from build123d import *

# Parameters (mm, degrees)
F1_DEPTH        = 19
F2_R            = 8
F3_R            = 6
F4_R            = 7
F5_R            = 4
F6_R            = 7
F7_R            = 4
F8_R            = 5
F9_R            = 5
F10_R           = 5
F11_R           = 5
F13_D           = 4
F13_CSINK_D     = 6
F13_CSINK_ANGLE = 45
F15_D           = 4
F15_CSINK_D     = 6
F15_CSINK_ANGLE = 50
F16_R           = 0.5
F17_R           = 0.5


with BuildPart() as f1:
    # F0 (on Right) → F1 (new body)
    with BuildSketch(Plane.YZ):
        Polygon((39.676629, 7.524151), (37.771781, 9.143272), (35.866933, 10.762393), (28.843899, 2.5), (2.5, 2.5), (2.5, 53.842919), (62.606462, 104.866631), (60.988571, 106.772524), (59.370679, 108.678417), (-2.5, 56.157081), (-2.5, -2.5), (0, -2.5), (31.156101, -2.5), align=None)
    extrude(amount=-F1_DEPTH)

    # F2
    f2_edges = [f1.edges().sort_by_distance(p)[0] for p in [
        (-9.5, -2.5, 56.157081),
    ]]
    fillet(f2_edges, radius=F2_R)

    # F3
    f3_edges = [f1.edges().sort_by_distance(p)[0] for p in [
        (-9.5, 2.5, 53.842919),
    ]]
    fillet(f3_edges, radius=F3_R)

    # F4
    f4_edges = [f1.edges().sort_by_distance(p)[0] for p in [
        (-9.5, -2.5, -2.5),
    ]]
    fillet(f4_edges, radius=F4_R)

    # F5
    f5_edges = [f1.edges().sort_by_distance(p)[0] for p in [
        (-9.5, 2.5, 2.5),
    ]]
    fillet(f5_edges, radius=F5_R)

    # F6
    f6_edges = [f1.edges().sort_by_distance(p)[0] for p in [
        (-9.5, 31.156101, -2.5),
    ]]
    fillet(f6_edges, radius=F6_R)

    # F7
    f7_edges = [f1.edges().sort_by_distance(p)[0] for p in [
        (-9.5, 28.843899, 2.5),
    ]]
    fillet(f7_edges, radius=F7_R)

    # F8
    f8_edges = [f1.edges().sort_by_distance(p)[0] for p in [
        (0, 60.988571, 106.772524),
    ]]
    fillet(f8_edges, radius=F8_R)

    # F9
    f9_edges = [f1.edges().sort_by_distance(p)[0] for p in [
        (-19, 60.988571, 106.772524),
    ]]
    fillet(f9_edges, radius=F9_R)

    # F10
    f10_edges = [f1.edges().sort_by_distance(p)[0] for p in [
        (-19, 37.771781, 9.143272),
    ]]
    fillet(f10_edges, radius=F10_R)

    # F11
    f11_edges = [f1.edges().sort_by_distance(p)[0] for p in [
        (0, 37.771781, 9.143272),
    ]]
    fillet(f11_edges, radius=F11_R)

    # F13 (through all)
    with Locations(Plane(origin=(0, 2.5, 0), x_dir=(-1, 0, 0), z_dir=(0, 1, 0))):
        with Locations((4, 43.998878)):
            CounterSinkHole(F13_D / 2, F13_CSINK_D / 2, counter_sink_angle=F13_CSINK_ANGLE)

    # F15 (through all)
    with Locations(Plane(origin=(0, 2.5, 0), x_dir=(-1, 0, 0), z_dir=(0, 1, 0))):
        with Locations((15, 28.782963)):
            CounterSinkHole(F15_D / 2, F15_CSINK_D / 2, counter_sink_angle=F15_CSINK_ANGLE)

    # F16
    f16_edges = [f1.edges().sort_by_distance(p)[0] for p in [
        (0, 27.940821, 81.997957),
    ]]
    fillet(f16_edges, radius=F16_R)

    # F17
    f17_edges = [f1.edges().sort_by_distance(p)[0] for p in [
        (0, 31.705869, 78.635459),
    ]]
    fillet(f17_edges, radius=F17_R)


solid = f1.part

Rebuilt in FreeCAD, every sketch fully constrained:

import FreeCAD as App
import Part
import Sketcher

V = App.Vector
Q = App.Units.Quantity


def edges_at(feature, points):
    """Names of the edges that pass closest to the given points."""
    edges = feature.Shape.Edges
    near = lambda p: min(range(len(edges)), key=lambda i: edges[i].distToShape(Part.Vertex(*p))[0])
    return sorted({f"Edge{near(p) + 1}" for p in points})


def add_polygon(sketch, points):
    """Adds a closed chain of lines whose ends are joined by coincident constraints."""
    first, n = sketch.GeometryCount, len(points)
    for a, b in zip(points, points[1:] + points[:1]):
        sketch.addGeometry(Part.LineSegment(App.Vector(*a, 0), App.Vector(*b, 0)), False)
    for i in range(n):
        sketch.addConstraint(Sketcher.Constraint("Coincident", first + i, 2, first + (i + 1) % n, 1))

doc = App.newDocument("Part")
body = doc.addObject("PartDesign::Body", "Body")

# Sketch on YZ plane
sketch1 = body.newObject("Sketcher::SketchObject", "Sketch")
sketch1.AttachmentSupport = (doc.getObject("YZ_Plane"), [""])
sketch1.MapMode = "FlatFace"
add_polygon(sketch1, [(39.676629, 7.524151), (35.866933, 10.762393), (28.843899, 2.5), (2.5, 2.5), (2.5, 53.842919), (62.606462, 104.866631), (60.988571, 106.772524), (59.370679, 108.678417), (-2.5, 56.157081), (-2.5, -2.5), (31.156101, -2.5)])  # lines 0-10
sketch1.addConstraint(Sketcher.Constraint("Horizontal", 2))
sketch1.addConstraint(Sketcher.Constraint("Vertical", 3))
sketch1.addConstraint(Sketcher.Constraint("Vertical", 8))
sketch1.addConstraint(Sketcher.Constraint("Horizontal", 9))
sketch1.addConstraint(Sketcher.Constraint("Distance", 0, Q("4.999999 mm")))
sketch1.addConstraint(Sketcher.Constraint("DistanceX", 7, 2, 3, 2, Q("5 mm")))
sketch1.addConstraint(Sketcher.Constraint("DistanceY", 8, 2, 2, 2, Q("5 mm")))
sketch1.addConstraint(Sketcher.Constraint("Distance", 5, Q("2.5 mm")))
sketch1.addConstraint(Sketcher.Constraint("Distance", 6, Q("2.500001 mm")))
sketch1.addConstraint(Sketcher.Constraint("DistanceY", -1, 1, 1, 2, Q("2.5 mm")))
sketch1.addConstraint(Sketcher.Constraint("DistanceX", -1, 1, 2, 2, Q("2.5 mm")))
sketch1.addConstraint(Sketcher.Constraint("DistanceX", 2, 2, 2, 1, Q("26.343899 mm")))
sketch1.addConstraint(Sketcher.Constraint("DistanceX", 9, 1, 9, 2, Q("33.656101 mm")))
sketch1.addConstraint(Sketcher.Constraint("Distance", 1, Q("10.843899 mm")))
sketch1.addConstraint(Sketcher.Constraint("Distance", 10, Q("13.156101 mm")))
sketch1.addConstraint(Sketcher.Constraint("DistanceY", 3, 1, 3, 2, Q("51.342919 mm")))
sketch1.addConstraint(Sketcher.Constraint("DistanceY", 8, 2, 8, 1, Q("58.657081 mm")))
sketch1.addConstraint(Sketcher.Constraint("Distance", 4, Q("78.84292 mm")))
sketch1.addConstraint(Sketcher.Constraint("Distance", 7, Q("81.15708 mm")))
sketch1.addConstraint(Sketcher.Constraint("DistanceY", -1, 1, 4, 2, Q("104.866631 mm")))
sketch1.addConstraint(Sketcher.Constraint("DistanceX", -1, 1, 5, 2, Q("60.988571 mm")))
sketch1.addConstraint(Sketcher.Constraint("DistanceX", -1, 1, 10, 2, Q("39.676629 mm")))
pad1 = body.newObject("PartDesign::Pad", "Pad")
pad1.Profile = sketch1
pad1.Length = 19
pad1.Reversed = True
doc.recompute()

fillet = body.newObject("PartDesign::Fillet", "Fillet")
fillet.Base = (pad1, edges_at(pad1, [(-9.5, -2.5, 56.157)]))
fillet.Radius = 8
doc.recompute()

fillet2 = body.newObject("PartDesign::Fillet", "Fillet001")
fillet2.Base = (fillet, edges_at(fillet, [(-9.5, 2.5, 53.843)]))
fillet2.Radius = 6
doc.recompute()

fillet3 = body.newObject("PartDesign::Fillet", "Fillet002")
fillet3.Base = (fillet2, edges_at(fillet2, [(-9.5, -2.5, -2.5)]))
fillet3.Radius = 7
doc.recompute()

fillet4 = body.newObject("PartDesign::Fillet", "Fillet003")
fillet4.Base = (fillet3, edges_at(fillet3, [(-9.5, 2.5, 2.5)]))
fillet4.Radius = 4
doc.recompute()

fillet5 = body.newObject("PartDesign::Fillet", "Fillet004")
fillet5.Base = (fillet4, edges_at(fillet4, [(-9.5, 31.156, -2.5)]))
fillet5.Radius = 7
doc.recompute()

fillet6 = body.newObject("PartDesign::Fillet", "Fillet005")
fillet6.Base = (fillet5, edges_at(fillet5, [(-9.5, 28.844, 2.5)]))
fillet6.Radius = 4
doc.recompute()

fillet7 = body.newObject("PartDesign::Fillet", "Fillet006")
fillet7.Base = (fillet6, edges_at(fillet6, [(0, 61.798, 105.82)]))
fillet7.Radius = 5
doc.recompute()

fillet8 = body.newObject("PartDesign::Fillet", "Fillet007")
fillet8.Base = (fillet7, edges_at(fillet7, [(-19, 61.798, 105.82)]))
fillet8.Radius = 5
doc.recompute()

fillet9 = body.newObject("PartDesign::Fillet", "Fillet008")
fillet9.Base = (fillet8, edges_at(fillet8, [(-19, 37.772, 9.143)]))
fillet9.Radius = 5
doc.recompute()

fillet10 = body.newObject("PartDesign::Fillet", "Fillet009")
fillet10.Base = (fillet9, edges_at(fillet9, [(0, 37.772, 9.143)]))
fillet10.Radius = 5

# Sketch on XZ plane
sketch2 = body.newObject("Sketcher::SketchObject", "Sketch001")
sketch2.AttachmentSupport = (doc.getObject("XZ_Plane"), [""])
sketch2.MapMode = "FlatFace"
sketch2.AttachmentOffset = App.Placement(V(0, 0, -2.5), App.Rotation())
sketch2.addGeometry(Part.Circle(V(-4, 43.998878, 0), V(0, 0, 1), 2), False)
sketch2.addConstraint(Sketcher.Constraint("Diameter", 0, Q("4 mm")))
sketch2.addConstraint(Sketcher.Constraint("DistanceX", 0, 3, -1, 1, Q("4 mm")))
sketch2.addConstraint(Sketcher.Constraint("DistanceY", -1, 1, 0, 3, Q("43.998878 mm")))
doc.recompute()
hole = body.newObject("PartDesign::Hole", "Hole")
hole.Profile = sketch2
hole.ThreadType = "None"
hole.Diameter = 4
hole.DepthType = "ThroughAll"
hole.HoleCutType = "Countersink"
hole.HoleCutDiameter = 6
hole.HoleCutCountersinkAngle = 45
hole.Reversed = True

# Sketch on XZ plane
sketch3 = body.newObject("Sketcher::SketchObject", "Sketch002")
sketch3.AttachmentSupport = (doc.getObject("XZ_Plane"), [""])
sketch3.MapMode = "FlatFace"
sketch3.AttachmentOffset = App.Placement(V(0, 0, -2.5), App.Rotation())
sketch3.addGeometry(Part.Circle(V(-15, 28.782963, 0), V(0, 0, 1), 2), False)
sketch3.addConstraint(Sketcher.Constraint("Diameter", 0, Q("4 mm")))
sketch3.addConstraint(Sketcher.Constraint("DistanceX", 0, 3, -1, 1, Q("15 mm")))
sketch3.addConstraint(Sketcher.Constraint("DistanceY", -1, 1, 0, 3, Q("28.782963 mm")))
doc.recompute()
hole2 = body.newObject("PartDesign::Hole", "Hole001")
hole2.Profile = sketch3
hole2.ThreadType = "None"
hole2.Diameter = 4
hole2.DepthType = "ThroughAll"
hole2.HoleCutType = "Countersink"
hole2.HoleCutDiameter = 6
hole2.HoleCutCountersinkAngle = 50
hole2.Reversed = True
doc.recompute()

fillet11 = body.newObject("PartDesign::Fillet", "Fillet010")
fillet11.Base = (hole2, edges_at(hole2, [(0, 27.941, 81.998)]))
fillet11.Radius = 0.5
doc.recompute()

fillet12 = body.newObject("PartDesign::Fillet", "Fillet011")
fillet12.Base = (fillet11, edges_at(fillet11, [(0, 31.706, 78.635)]))
fillet12.Radius = 0.5

doc.recompute()
